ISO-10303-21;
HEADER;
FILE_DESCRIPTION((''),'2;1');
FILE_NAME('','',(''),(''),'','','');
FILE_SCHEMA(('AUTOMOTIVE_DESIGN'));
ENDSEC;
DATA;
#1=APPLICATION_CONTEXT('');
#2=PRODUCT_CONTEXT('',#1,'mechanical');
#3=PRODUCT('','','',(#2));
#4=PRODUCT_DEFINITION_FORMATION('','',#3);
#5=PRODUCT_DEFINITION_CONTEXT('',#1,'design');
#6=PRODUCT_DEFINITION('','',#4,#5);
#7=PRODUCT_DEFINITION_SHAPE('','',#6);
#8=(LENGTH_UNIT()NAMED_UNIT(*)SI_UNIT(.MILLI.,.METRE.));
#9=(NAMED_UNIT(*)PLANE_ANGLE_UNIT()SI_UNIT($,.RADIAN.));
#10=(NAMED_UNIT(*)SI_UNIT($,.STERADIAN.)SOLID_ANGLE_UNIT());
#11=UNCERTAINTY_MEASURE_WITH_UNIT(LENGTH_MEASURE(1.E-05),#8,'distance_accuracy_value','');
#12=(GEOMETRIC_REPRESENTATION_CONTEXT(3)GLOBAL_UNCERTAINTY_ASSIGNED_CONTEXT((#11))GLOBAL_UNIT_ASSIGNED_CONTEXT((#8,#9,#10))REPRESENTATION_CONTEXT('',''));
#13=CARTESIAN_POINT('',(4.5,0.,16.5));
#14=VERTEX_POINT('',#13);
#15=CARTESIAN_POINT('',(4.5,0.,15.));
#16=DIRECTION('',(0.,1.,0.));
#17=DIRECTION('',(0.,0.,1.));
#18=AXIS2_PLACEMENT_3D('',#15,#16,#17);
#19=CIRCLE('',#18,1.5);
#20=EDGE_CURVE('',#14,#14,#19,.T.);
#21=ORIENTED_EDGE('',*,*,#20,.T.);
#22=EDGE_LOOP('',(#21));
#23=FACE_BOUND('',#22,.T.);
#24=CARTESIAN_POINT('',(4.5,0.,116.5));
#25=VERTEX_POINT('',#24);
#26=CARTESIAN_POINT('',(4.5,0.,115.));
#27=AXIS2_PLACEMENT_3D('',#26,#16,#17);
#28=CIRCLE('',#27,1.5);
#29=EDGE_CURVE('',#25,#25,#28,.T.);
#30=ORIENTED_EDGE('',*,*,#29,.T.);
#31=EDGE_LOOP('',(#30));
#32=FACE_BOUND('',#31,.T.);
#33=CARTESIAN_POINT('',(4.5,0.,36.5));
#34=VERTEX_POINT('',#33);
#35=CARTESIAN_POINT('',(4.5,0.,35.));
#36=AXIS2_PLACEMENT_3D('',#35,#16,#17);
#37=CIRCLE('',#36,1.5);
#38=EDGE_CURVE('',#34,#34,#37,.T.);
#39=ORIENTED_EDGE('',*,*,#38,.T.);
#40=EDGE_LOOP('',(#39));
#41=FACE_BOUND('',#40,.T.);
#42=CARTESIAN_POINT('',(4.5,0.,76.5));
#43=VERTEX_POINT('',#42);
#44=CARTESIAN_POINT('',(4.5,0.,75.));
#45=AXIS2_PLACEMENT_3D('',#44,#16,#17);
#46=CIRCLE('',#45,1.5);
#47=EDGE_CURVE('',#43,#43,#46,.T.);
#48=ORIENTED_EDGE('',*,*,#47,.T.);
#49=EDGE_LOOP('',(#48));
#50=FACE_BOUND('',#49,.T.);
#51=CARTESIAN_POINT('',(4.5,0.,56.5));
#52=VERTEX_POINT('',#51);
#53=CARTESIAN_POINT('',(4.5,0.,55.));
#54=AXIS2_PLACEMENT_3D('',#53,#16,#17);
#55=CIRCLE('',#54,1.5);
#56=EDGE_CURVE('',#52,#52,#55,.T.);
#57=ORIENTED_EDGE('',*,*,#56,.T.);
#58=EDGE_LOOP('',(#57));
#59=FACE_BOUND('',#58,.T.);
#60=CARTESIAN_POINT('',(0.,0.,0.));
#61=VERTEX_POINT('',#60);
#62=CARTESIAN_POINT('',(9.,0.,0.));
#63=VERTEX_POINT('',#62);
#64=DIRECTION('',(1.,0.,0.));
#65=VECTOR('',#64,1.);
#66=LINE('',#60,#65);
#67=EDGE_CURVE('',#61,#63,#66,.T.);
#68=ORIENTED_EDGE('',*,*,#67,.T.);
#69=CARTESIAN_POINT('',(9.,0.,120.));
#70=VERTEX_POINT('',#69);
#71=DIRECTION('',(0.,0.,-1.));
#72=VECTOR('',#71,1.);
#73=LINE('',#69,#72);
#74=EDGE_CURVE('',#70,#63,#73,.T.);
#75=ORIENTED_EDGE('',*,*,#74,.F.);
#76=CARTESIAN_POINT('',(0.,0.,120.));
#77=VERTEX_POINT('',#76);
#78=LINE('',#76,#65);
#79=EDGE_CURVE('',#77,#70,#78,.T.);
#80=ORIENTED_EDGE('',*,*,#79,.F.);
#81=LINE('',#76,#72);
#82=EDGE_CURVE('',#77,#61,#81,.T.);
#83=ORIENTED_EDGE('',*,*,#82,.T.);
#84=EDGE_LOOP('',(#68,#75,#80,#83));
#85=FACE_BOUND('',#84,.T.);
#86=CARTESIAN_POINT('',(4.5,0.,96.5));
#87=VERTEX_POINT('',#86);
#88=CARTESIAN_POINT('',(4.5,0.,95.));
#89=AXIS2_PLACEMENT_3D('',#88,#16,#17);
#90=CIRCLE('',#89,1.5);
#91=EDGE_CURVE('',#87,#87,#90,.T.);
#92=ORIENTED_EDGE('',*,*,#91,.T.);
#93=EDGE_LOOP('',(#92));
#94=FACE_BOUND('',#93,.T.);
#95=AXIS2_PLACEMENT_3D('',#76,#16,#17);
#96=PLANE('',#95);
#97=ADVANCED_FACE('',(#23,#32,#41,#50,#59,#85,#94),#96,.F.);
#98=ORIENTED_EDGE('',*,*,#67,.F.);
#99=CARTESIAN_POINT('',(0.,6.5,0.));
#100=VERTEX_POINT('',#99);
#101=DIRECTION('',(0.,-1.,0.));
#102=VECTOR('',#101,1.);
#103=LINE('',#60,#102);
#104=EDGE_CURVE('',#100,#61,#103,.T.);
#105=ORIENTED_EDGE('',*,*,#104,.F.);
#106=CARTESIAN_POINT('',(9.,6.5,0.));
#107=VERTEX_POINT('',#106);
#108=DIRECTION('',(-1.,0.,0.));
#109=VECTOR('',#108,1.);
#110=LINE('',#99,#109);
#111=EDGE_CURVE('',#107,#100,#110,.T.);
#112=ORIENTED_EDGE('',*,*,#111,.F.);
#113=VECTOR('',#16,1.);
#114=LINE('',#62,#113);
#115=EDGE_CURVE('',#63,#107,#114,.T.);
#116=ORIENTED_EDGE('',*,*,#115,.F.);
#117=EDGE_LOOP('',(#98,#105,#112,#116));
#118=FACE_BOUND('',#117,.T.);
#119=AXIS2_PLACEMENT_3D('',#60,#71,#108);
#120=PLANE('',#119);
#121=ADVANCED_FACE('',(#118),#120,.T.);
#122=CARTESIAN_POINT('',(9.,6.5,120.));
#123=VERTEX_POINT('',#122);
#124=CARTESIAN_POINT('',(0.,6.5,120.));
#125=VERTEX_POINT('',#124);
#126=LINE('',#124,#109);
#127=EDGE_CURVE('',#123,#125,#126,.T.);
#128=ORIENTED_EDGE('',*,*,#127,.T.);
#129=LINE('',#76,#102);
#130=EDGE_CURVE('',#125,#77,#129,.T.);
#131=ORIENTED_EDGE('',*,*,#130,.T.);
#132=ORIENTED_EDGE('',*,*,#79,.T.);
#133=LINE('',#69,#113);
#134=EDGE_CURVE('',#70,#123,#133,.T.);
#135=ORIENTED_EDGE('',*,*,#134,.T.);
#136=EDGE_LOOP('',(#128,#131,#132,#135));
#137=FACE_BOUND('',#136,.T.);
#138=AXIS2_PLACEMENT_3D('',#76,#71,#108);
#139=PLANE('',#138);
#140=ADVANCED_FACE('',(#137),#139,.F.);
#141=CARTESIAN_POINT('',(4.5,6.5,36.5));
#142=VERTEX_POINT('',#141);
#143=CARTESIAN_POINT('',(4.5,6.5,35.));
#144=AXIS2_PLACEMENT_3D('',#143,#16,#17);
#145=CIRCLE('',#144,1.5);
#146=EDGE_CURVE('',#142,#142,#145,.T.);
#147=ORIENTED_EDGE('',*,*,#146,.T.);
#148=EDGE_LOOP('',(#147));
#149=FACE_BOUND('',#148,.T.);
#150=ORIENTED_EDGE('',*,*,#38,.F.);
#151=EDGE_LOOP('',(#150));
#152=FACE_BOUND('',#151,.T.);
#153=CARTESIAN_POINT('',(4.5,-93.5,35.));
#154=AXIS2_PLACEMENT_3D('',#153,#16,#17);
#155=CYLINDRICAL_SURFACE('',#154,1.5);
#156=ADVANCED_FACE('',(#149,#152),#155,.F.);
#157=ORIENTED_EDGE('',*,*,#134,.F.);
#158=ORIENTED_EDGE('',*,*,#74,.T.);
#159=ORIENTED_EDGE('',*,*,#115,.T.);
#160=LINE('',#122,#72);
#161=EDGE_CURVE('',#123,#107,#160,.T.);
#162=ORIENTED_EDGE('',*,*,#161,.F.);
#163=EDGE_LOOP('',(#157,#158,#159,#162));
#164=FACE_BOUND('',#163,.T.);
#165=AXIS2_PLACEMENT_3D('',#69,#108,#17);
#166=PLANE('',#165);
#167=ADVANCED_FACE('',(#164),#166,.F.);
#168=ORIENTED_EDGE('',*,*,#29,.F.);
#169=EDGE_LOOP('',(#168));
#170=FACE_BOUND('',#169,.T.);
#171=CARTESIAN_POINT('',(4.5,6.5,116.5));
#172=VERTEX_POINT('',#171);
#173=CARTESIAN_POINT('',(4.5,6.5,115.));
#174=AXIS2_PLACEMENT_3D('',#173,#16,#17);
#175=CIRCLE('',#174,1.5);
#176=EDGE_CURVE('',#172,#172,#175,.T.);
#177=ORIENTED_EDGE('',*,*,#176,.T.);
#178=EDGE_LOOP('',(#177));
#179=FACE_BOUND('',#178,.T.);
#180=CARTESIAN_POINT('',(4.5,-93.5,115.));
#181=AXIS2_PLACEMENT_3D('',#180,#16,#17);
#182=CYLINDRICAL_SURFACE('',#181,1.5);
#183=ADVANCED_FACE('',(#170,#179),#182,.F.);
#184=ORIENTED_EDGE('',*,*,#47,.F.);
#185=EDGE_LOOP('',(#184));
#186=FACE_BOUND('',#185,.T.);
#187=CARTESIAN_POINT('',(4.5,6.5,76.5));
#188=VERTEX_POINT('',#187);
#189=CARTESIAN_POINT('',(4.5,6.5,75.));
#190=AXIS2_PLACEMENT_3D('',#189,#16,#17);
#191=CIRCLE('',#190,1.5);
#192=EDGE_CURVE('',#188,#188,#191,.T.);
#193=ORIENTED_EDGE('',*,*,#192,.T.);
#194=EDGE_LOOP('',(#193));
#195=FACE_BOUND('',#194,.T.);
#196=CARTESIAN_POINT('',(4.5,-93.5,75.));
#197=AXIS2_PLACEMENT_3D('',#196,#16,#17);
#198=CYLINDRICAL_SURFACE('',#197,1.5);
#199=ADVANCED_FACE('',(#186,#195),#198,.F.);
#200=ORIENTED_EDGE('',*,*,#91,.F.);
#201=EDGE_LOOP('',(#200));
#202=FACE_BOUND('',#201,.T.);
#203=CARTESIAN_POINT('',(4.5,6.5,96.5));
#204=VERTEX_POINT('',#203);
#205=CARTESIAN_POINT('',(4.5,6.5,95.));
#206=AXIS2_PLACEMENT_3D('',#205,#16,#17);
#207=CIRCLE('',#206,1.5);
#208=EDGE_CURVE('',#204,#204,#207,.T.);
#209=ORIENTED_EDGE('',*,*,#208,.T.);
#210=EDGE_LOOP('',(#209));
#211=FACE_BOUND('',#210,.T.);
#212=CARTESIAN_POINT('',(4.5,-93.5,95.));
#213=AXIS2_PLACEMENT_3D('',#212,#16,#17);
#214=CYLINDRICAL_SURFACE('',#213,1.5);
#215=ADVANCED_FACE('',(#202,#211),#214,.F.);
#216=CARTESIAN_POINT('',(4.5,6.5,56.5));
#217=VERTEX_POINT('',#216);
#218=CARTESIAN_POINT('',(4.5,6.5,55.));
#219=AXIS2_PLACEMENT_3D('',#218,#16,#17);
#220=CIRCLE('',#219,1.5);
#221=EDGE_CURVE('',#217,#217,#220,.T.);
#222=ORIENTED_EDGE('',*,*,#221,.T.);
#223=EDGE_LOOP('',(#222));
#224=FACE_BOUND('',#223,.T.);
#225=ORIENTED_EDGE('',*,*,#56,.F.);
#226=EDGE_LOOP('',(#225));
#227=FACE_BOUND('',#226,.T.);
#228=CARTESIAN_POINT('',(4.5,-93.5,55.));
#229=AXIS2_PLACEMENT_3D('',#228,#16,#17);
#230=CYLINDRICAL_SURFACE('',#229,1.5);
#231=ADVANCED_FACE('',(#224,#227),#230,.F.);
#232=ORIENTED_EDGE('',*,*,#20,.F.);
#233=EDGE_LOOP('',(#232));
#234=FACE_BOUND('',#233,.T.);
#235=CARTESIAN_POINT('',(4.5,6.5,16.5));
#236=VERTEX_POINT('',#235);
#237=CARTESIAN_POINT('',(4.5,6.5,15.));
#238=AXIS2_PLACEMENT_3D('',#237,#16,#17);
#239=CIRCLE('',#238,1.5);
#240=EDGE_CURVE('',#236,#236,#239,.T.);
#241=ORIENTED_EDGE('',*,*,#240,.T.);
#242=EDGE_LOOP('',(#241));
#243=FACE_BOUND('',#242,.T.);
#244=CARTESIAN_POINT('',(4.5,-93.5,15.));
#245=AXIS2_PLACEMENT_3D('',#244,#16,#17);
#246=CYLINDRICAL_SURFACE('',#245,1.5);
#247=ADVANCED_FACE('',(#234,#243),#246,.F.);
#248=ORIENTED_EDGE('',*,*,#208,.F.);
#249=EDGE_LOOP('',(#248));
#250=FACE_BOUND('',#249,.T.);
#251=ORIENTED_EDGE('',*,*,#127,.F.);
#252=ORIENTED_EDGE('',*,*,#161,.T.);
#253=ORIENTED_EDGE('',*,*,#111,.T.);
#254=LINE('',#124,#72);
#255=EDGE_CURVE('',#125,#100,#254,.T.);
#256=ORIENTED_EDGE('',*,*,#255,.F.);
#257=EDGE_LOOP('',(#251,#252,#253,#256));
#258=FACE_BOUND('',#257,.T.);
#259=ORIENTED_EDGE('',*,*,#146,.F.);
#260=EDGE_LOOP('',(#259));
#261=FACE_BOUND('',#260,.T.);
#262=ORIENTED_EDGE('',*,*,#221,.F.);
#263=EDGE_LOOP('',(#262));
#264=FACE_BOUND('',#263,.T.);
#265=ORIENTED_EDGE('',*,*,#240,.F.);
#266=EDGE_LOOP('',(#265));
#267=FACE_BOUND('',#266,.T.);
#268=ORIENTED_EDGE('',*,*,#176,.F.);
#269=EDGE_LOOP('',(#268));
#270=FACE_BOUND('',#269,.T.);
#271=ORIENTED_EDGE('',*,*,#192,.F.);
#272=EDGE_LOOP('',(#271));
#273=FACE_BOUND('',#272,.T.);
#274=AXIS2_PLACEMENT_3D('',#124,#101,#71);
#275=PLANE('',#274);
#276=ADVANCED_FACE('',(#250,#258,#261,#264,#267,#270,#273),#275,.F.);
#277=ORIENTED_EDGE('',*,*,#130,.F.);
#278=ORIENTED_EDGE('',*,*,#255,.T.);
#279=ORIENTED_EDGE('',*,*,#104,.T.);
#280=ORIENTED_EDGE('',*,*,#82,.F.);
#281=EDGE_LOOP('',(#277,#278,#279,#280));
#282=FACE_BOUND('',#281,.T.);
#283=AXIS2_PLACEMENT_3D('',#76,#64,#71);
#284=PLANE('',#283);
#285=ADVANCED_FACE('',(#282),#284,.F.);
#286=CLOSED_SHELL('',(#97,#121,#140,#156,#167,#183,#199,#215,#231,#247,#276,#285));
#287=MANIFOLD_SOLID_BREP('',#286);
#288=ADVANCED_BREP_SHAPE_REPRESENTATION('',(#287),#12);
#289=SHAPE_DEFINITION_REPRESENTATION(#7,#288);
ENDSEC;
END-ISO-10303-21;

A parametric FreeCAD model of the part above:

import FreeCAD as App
import Part
import Sketcher

V = App.Vector


def add_polygon(sketch, points):
    """Adds a closed chain of lines whose ends are joined by coincident constraints."""
    first, n = sketch.GeometryCount, len(points)
    for a, b in zip(points, points[1:] + points[:1]):
        sketch.addGeometry(Part.LineSegment(App.Vector(*a, 0), App.Vector(*b, 0)), False)
    for i in range(n):
        sketch.addConstraint(Sketcher.Constraint("Coincident", first + i, 2, first + (i + 1) % n, 1))

doc = App.newDocument("Part")
body = doc.addObject("PartDesign::Body", "Body")

sketch1 = body.newObject("Sketcher::SketchObject", "Sketch")
sketch1.AttachmentSupport = (doc.getObject("XY_Plane"), [""])
sketch1.MapMode = "FlatFace"
add_polygon(sketch1, [(0, 6), (0, 0), (9, 0), (9, 6)])
sketch1.addConstraint([
    Sketcher.Constraint("Vertical", 0),
    Sketcher.Constraint("Horizontal", 1),
    Sketcher.Constraint("Vertical", 2),
    Sketcher.Constraint("Horizontal", 3),
    Sketcher.Constraint("Coincident", 0, 2, -1, 1),
    Sketcher.Constraint("DistanceX", 1, 1, 1, 2, 9.0),
    Sketcher.Constraint("DistanceY", 0, 2, 0, 1, 6.5),
])
pad1 = body.newObject("PartDesign::Pad", "Pad")
pad1.Profile = sketch1
pad1.Length = 120

sketch2 = body.newObject("Sketcher::SketchObject", "Sketch001")
sketch2.AttachmentSupport = (doc.getObject("XZ_Plane"), [""])
sketch2.MapMode = "FlatFace"
sketch2.AttachmentOffset = App.Placement(V(0, 0, -6.5), App.Rotation())
sketch2.addGeometry([
    Part.Circle(V(4.5, 115, 0), V(0, 0, 1), 1.5),
    Part.Circle(V(4.5, 95, 0), V(0, 0, 1), 1.5),
    Part.Circle(V(4.5, 75, 0), V(0, 0, 1), 1.5),
    Part.Circle(V(4.5, 55, 0), V(0, 0, 1), 1.5),
    Part.Circle(V(4.5, 35, 0), V(0, 0, 1), 1.5),
    Part.Circle(V(4.5, 15, 0), V(0, 0, 1), 1.5),
], False)
sketch2.addConstraint([
    Sketcher.Constraint("Equal", 0, 1),
    Sketcher.Constraint("Equal", 1, 2),
    Sketcher.Constraint("Equal", 2, 3),
    Sketcher.Constraint("Equal", 3, 4),
    Sketcher.Constraint("Equal", 4, 5),
    Sketcher.Constraint("Vertical", 0, 3, 1, 3),
    Sketcher.Constraint("Vertical", 1, 3, 2, 3),
    Sketcher.Constraint("Vertical", 2, 3, 3, 3),
    Sketcher.Constraint("Vertical", 3, 3, 4, 3),
    Sketcher.Constraint("Vertical", 4, 3, 5, 3),
    Sketcher.Constraint("Diameter", 0, 3.0),
    Sketcher.Constraint("DistanceY", -1, 1, 0, 3, 115.0),
    Sketcher.Constraint("DistanceY", -1, 1, 1, 3, 95.0),
    Sketcher.Constraint("DistanceY", -1, 1, 2, 3, 75.0),
    Sketcher.Constraint("DistanceY", -1, 1, 3, 3, 55.0),
    Sketcher.Constraint("DistanceY", -1, 1, 4, 3, 35.0),
    Sketcher.Constraint("DistanceY", -1, 1, 5, 3, 15.0),
    Sketcher.Constraint("DistanceX", -1, 1, 0, 3, 4.5),
])
pocket1 = body.newObject("PartDesign::Pocket", "Pocket")
pocket1.Profile = sketch2
pocket1.Length = 100
pocket1.Reversed = True

doc.recompute()
